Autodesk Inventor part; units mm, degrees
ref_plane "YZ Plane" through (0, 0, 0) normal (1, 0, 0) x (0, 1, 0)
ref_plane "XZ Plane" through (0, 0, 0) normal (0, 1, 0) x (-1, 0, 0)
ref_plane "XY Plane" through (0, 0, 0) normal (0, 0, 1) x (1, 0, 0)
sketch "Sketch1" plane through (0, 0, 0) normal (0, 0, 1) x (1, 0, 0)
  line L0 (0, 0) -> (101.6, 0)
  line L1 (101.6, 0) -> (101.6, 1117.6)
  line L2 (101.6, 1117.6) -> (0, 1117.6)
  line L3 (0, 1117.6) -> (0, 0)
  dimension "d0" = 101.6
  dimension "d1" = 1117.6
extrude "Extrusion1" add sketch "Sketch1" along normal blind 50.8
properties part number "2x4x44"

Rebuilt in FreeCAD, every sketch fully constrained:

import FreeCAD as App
import Part
import Sketcher
Q = App.Units.Quantity

doc = App.newDocument("Part")
body = doc.addObject("PartDesign::Body", "Body")

sketch1 = body.newObject("Sketcher::SketchObject", "Sketch")
sketch1.AttachmentSupport = (doc.getObject("XY_Plane"), [""])
sketch1.MapMode = "FlatFace"
sketch1.addGeometry([
    Part.LineSegment(App.Vector(0, 1118, 0), App.Vector(0, 0, 0)),
    Part.LineSegment(App.Vector(0, 0, 0), App.Vector(102, 0, 0)),
    Part.LineSegment(App.Vector(102, 0, 0), App.Vector(102, 1118, 0)),
    Part.LineSegment(App.Vector(102, 1118, 0), App.Vector(0, 1118, 0)),
], False)
sketch1.addConstraint([
    Sketcher.Constraint("Coincident", 0, 2, 1, 1),
    Sketcher.Constraint("Coincident", 1, 2, 2, 1),
    Sketcher.Constraint("Coincident", 2, 2, 3, 1),
    Sketcher.Constraint("Coincident", 3, 2, 0, 1),
    Sketcher.Constraint("Vertical", 0),
    Sketcher.Constraint("Horizontal", 1),
    Sketcher.Constraint("Vertical", 2),
    Sketcher.Constraint("Horizontal", 3),
    Sketcher.Constraint("Coincident", 0, 2, -1, 1),
    Sketcher.Constraint("DistanceX", 1, 1, 1, 2, Q("4 in")),
    Sketcher.Constraint("DistanceY", 0, 2, 0, 1, Q("44 in")),
])
pad1 = body.newObject("PartDesign::Pad", "Pad")
pad1.Profile = sketch1
pad1.Length = Q("2 in")

doc.recompute()
